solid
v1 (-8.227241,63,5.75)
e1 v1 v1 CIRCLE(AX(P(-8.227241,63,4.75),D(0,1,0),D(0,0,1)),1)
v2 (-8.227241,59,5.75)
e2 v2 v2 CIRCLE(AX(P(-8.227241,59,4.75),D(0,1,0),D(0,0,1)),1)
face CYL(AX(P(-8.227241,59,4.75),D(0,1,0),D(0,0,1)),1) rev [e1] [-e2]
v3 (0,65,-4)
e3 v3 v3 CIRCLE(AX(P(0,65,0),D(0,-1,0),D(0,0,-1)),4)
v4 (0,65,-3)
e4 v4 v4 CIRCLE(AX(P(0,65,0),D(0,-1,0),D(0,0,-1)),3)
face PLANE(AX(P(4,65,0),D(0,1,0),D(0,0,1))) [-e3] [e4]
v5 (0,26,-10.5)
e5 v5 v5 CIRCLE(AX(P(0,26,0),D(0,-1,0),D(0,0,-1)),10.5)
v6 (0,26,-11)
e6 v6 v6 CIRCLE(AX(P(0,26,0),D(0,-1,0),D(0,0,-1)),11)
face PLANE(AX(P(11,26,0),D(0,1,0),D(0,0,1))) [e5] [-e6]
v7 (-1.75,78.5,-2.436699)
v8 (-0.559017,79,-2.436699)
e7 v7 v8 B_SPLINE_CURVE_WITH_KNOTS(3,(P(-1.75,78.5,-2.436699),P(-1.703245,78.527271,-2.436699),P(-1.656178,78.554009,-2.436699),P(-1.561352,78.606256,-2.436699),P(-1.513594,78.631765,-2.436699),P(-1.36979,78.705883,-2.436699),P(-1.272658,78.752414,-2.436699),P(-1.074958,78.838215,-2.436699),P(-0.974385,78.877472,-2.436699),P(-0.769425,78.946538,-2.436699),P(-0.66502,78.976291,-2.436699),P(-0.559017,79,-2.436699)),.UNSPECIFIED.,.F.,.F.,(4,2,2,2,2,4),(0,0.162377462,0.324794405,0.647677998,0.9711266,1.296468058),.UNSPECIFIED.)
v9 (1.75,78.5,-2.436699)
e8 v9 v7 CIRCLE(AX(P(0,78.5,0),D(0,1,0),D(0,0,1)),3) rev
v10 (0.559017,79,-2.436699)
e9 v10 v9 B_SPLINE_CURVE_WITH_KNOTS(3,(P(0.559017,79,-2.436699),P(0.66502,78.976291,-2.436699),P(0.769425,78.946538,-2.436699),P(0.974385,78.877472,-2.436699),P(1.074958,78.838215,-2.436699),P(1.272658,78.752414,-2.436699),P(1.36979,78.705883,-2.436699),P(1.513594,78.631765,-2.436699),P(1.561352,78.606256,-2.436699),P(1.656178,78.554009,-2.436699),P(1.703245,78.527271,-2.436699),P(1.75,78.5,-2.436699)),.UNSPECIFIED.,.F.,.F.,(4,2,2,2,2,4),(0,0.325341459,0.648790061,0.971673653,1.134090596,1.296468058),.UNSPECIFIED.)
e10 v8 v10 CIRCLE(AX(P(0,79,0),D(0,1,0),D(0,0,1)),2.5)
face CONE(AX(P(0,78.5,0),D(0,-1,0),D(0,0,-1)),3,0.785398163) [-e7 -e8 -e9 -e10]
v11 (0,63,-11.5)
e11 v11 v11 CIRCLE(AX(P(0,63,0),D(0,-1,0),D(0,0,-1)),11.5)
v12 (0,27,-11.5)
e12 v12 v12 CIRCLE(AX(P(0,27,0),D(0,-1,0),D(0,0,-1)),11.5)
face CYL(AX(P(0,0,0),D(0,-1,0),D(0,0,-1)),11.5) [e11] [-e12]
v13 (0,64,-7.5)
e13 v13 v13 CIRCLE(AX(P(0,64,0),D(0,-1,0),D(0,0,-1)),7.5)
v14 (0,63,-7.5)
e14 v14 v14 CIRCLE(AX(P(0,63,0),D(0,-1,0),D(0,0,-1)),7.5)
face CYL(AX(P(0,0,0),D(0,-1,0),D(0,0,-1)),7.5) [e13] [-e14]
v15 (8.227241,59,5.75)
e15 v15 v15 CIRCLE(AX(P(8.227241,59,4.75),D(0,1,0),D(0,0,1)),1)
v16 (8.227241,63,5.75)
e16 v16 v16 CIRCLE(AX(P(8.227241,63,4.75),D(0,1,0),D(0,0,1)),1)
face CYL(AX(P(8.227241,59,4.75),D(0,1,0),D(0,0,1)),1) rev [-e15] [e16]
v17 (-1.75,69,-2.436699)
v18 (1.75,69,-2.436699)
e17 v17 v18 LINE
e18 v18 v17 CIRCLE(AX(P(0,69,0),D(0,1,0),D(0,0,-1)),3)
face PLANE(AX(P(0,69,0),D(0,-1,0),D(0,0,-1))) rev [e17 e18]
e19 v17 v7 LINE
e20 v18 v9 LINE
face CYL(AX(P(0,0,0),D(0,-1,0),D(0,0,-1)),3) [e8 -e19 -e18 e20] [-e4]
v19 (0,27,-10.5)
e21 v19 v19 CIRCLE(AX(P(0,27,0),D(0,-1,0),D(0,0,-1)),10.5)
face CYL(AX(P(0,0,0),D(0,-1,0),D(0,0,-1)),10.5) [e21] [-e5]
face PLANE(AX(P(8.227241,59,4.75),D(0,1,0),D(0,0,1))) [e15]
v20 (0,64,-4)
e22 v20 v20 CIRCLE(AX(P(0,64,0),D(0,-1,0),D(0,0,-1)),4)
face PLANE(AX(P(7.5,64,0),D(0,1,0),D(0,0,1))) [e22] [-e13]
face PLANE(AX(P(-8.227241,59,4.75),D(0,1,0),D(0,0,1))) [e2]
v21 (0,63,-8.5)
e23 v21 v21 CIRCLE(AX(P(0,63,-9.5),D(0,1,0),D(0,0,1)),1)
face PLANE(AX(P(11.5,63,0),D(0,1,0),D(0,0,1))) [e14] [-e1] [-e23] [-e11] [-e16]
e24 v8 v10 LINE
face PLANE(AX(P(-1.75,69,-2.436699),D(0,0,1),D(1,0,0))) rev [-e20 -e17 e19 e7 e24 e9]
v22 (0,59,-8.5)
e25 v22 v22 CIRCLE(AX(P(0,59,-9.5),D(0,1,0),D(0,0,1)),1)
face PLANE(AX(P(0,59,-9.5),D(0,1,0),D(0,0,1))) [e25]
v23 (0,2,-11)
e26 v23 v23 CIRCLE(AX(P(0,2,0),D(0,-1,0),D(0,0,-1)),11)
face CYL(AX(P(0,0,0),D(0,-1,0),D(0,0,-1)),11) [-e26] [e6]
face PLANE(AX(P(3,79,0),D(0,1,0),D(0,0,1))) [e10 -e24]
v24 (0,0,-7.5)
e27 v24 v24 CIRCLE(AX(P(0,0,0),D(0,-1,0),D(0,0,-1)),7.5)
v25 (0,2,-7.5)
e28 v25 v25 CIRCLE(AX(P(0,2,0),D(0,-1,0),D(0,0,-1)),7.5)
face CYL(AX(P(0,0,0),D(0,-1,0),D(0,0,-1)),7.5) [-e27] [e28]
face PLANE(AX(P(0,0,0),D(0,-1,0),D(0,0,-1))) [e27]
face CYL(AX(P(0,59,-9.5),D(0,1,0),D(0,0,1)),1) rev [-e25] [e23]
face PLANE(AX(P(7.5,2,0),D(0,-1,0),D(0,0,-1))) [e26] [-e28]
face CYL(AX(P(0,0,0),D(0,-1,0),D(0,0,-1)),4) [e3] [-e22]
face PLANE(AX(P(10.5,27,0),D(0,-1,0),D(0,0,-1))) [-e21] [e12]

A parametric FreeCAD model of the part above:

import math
import FreeCAD as App
import Part
import Sketcher
from FreeCAD import Vector
Q = App.Units.Quantity


def edges_at(feature, points):
    """Names of the edges that pass closest to the given points."""
    edges = feature.Shape.Edges
    near = lambda p: min(range(len(edges)), key=lambda i: edges[i].distToShape(Part.Vertex(*p))[0])
    return sorted({f"Edge{near(p) + 1}" for p in points})

doc = App.newDocument("Part")
body = doc.addObject("PartDesign::Body", "Body")

# Sketch on XY plane
sketch1 = body.newObject("Sketcher::SketchObject", "Sketch")
sketch1.AttachmentSupport = (doc.getObject("XY_Plane"), [""])
sketch1.MapMode = "FlatFace"
sketch1.addGeometry([
    Part.LineSegment(Vector(0, 0, 0), Vector(7.5, 0, 0)),  # 0
    Part.LineSegment(Vector(7.5, 0, 0), Vector(7.5, 2, 0)),  # 1
    Part.LineSegment(Vector(7.5, 2, 0), Vector(11, 2, 0)),  # 2
    Part.LineSegment(Vector(11, 2, 0), Vector(11, 26, 0)),  # 3
    Part.LineSegment(Vector(11, 26, 0), Vector(10.5, 26, 0)),  # 4
    Part.LineSegment(Vector(10.5, 26, 0), Vector(10.5, 27, 0)),  # 5
    Part.LineSegment(Vector(10.5, 27, 0), Vector(11.5, 27, 0)),  # 6
    Part.LineSegment(Vector(11.5, 27, 0), Vector(11.5, 63, 0)),  # 7
    Part.LineSegment(Vector(11.5, 63, 0), Vector(7.5, 63, 0)),  # 8
    Part.LineSegment(Vector(7.5, 63, 0), Vector(7.5, 64, 0)),  # 9
    Part.LineSegment(Vector(7.5, 64, 0), Vector(4, 64, 0)),  # 10
    Part.LineSegment(Vector(4, 64, 0), Vector(4, 65, 0)),  # 11
    Part.LineSegment(Vector(4, 65, 0), Vector(3, 65, 0)),  # 12
    Part.LineSegment(Vector(3, 65, 0), Vector(3, 79, 0)),  # 13
    Part.LineSegment(Vector(3, 79, 0), Vector(0, 79, 0)),  # 14
    Part.LineSegment(Vector(0, 79, 0), Vector(0, 0, 0)),  # 15
], False)
sketch1.addConstraint([
    Sketcher.Constraint("Coincident", 0, 2, 1, 1),
    Sketcher.Constraint("Coincident", 1, 2, 2, 1),
    Sketcher.Constraint("Coincident", 2, 2, 3, 1),
    Sketcher.Constraint("Coincident", 3, 2, 4, 1),
    Sketcher.Constraint("Coincident", 4, 2, 5, 1),
    Sketcher.Constraint("Coincident", 5, 2, 6, 1),
    Sketcher.Constraint("Coincident", 6, 2, 7, 1),
    Sketcher.Constraint("Coincident", 7, 2, 8, 1),
    Sketcher.Constraint("Coincident", 8, 2, 9, 1),
    Sketcher.Constraint("Coincident", 9, 2, 10, 1),
    Sketcher.Constraint("Coincident", 10, 2, 11, 1),
    Sketcher.Constraint("Coincident", 11, 2, 12, 1),
    Sketcher.Constraint("Coincident", 12, 2, 13, 1),
    Sketcher.Constraint("Coincident", 13, 2, 14, 1),
    Sketcher.Constraint("Coincident", 14, 2, 15, 1),
    Sketcher.Constraint("Coincident", 15, 2, 0, 1),
    Sketcher.Constraint("Horizontal", 0),
    Sketcher.Constraint("Vertical", 1),
    Sketcher.Constraint("Horizontal", 2),
    Sketcher.Constraint("Vertical", 3),
    Sketcher.Constraint("Horizontal", 4),
    Sketcher.Constraint("Vertical", 5),
    Sketcher.Constraint("Horizontal", 6),
    Sketcher.Constraint("Vertical", 7),
    Sketcher.Constraint("Horizontal", 8),
    Sketcher.Constraint("Vertical", 9),
    Sketcher.Constraint("Horizontal", 10),
    Sketcher.Constraint("Vertical", 11),
    Sketcher.Constraint("Horizontal", 12),
    Sketcher.Constraint("Vertical", 13),
    Sketcher.Constraint("Horizontal", 14),
    Sketcher.Constraint("Vertical", 15),
    Sketcher.Constraint("Coincident", 15, 2, -1, 1),
    Sketcher.Constraint("Vertical", 1, 2, 8, 2),
    Sketcher.Constraint("Equal", 2, 10),
    Sketcher.Constraint("Equal", 6, 12),
    Sketcher.Constraint("Equal", 12, 5),
    Sketcher.Constraint("Equal", 5, 9),
    Sketcher.Constraint("Equal", 9, 11),
    Sketcher.Constraint("DistanceX", 6, 1, 6, 2, Q("1 mm")),
    Sketcher.Constraint("DistanceX", 8, 2, 8, 1, Q("4 mm")),
    Sketcher.Constraint("DistanceX", 14, 2, 14, 1, Q("3 mm")),
    Sketcher.Constraint("DistanceY", 1, 1, 1, 2, Q("2 mm")),
    Sketcher.Constraint("DistanceY", 3, 1, 3, 2, Q("24 mm")),
    Sketcher.Constraint("DistanceY", 7, 1, 7, 2, Q("36 mm")),
    Sketcher.Constraint("DistanceY", 13, 1, 13, 2, Q("14 mm")),
    Sketcher.Constraint("DistanceX", 0, 1, 0, 2, Q("7.5 mm")),
])
revolution = body.newObject("PartDesign::Revolution", "Revolution")
revolution.Profile = sketch1
revolution.ReferenceAxis = (sketch1, ["V_Axis"])
revolution.Angle = 360

# Sketch on XZ plane
sketch2 = body.newObject("Sketcher::SketchObject", "Sketch001")
sketch2.AttachmentSupport = (doc.getObject("XZ_Plane"), [""])
sketch2.MapMode = "FlatFace"
sketch2.AttachmentOffset = App.Placement(Vector(0, 0, -79), App.Rotation())
sketch2.addGeometry([
    Part.LineSegment(Vector(-1.75, -2.436699, 0), Vector(1.75, -2.436699, 0)),
    Part.ArcOfCircle(Part.Circle(Vector(0, 0, 0), Vector(0, 0, 1), 3), math.radians(-125.685335), math.radians(-54.314665)),
], False)
sketch2.addConstraint([
    Sketcher.Constraint("Coincident", 0, 1, 1, 1),
    Sketcher.Constraint("Coincident", 1, 2, 0, 2),
    Sketcher.Constraint("Horizontal", 0),
    Sketcher.Constraint("Coincident", 1, 3, -1, 1),
    Sketcher.Constraint("Radius", 1, Q("3 mm")),
    Sketcher.Constraint("DistanceX", 0, 1, 0, 2, Q("3.5 mm")),
])
pocket1 = body.newObject("PartDesign::Pocket", "Pocket")
pocket1.Profile = sketch2
pocket1.Length = 10
pocket1.Reversed = True
doc.recompute()

chamfer = body.newObject("PartDesign::Chamfer", "Chamfer")
chamfer.Base = (pocket1, edges_at(pocket1, [(0, 79, 3)]))
chamfer.Size = 0.5

# Sketch on XZ plane
sketch3 = body.newObject("Sketcher::SketchObject", "Sketch002")
sketch3.AttachmentSupport = (doc.getObject("XZ_Plane"), [""])
sketch3.MapMode = "FlatFace"
sketch3.AttachmentOffset = App.Placement(Vector(0, 0, -63), App.Rotation())
sketch3.addGeometry([
    Part.Circle(Vector(0, -9.5, 0), Vector(0, 0, 1), 1),
    Part.Circle(Vector(8.227241, 4.75, 0), Vector(0, 0, 1), 1),
    Part.Circle(Vector(-8.227241, 4.75, 0), Vector(0, 0, 1), 1),
], False)
sketch3.addConstraint([
    Sketcher.Constraint("Equal", 0, 1),
    Sketcher.Constraint("Equal", 1, 2),
    Sketcher.Constraint("Symmetric", 1, 3, 2, 3, -2),
    Sketcher.Constraint("PointOnObject", 0, 3, -2),
    Sketcher.Constraint("Diameter", 0, Q("2 mm")),
    Sketcher.Constraint("DistanceY", 0, 3, -1, 1, Q("9.5 mm")),
    Sketcher.Constraint("DistanceY", -1, 1, 1, 3, Q("4.75 mm")),
    Sketcher.Constraint("DistanceX", -1, 1, 1, 3, Q("8.227241 mm")),
])
pocket2 = body.newObject("PartDesign::Pocket", "Pocket001")
pocket2.Profile = sketch3
pocket2.Length = 4
pocket2.Reversed = True

doc.recompute()
